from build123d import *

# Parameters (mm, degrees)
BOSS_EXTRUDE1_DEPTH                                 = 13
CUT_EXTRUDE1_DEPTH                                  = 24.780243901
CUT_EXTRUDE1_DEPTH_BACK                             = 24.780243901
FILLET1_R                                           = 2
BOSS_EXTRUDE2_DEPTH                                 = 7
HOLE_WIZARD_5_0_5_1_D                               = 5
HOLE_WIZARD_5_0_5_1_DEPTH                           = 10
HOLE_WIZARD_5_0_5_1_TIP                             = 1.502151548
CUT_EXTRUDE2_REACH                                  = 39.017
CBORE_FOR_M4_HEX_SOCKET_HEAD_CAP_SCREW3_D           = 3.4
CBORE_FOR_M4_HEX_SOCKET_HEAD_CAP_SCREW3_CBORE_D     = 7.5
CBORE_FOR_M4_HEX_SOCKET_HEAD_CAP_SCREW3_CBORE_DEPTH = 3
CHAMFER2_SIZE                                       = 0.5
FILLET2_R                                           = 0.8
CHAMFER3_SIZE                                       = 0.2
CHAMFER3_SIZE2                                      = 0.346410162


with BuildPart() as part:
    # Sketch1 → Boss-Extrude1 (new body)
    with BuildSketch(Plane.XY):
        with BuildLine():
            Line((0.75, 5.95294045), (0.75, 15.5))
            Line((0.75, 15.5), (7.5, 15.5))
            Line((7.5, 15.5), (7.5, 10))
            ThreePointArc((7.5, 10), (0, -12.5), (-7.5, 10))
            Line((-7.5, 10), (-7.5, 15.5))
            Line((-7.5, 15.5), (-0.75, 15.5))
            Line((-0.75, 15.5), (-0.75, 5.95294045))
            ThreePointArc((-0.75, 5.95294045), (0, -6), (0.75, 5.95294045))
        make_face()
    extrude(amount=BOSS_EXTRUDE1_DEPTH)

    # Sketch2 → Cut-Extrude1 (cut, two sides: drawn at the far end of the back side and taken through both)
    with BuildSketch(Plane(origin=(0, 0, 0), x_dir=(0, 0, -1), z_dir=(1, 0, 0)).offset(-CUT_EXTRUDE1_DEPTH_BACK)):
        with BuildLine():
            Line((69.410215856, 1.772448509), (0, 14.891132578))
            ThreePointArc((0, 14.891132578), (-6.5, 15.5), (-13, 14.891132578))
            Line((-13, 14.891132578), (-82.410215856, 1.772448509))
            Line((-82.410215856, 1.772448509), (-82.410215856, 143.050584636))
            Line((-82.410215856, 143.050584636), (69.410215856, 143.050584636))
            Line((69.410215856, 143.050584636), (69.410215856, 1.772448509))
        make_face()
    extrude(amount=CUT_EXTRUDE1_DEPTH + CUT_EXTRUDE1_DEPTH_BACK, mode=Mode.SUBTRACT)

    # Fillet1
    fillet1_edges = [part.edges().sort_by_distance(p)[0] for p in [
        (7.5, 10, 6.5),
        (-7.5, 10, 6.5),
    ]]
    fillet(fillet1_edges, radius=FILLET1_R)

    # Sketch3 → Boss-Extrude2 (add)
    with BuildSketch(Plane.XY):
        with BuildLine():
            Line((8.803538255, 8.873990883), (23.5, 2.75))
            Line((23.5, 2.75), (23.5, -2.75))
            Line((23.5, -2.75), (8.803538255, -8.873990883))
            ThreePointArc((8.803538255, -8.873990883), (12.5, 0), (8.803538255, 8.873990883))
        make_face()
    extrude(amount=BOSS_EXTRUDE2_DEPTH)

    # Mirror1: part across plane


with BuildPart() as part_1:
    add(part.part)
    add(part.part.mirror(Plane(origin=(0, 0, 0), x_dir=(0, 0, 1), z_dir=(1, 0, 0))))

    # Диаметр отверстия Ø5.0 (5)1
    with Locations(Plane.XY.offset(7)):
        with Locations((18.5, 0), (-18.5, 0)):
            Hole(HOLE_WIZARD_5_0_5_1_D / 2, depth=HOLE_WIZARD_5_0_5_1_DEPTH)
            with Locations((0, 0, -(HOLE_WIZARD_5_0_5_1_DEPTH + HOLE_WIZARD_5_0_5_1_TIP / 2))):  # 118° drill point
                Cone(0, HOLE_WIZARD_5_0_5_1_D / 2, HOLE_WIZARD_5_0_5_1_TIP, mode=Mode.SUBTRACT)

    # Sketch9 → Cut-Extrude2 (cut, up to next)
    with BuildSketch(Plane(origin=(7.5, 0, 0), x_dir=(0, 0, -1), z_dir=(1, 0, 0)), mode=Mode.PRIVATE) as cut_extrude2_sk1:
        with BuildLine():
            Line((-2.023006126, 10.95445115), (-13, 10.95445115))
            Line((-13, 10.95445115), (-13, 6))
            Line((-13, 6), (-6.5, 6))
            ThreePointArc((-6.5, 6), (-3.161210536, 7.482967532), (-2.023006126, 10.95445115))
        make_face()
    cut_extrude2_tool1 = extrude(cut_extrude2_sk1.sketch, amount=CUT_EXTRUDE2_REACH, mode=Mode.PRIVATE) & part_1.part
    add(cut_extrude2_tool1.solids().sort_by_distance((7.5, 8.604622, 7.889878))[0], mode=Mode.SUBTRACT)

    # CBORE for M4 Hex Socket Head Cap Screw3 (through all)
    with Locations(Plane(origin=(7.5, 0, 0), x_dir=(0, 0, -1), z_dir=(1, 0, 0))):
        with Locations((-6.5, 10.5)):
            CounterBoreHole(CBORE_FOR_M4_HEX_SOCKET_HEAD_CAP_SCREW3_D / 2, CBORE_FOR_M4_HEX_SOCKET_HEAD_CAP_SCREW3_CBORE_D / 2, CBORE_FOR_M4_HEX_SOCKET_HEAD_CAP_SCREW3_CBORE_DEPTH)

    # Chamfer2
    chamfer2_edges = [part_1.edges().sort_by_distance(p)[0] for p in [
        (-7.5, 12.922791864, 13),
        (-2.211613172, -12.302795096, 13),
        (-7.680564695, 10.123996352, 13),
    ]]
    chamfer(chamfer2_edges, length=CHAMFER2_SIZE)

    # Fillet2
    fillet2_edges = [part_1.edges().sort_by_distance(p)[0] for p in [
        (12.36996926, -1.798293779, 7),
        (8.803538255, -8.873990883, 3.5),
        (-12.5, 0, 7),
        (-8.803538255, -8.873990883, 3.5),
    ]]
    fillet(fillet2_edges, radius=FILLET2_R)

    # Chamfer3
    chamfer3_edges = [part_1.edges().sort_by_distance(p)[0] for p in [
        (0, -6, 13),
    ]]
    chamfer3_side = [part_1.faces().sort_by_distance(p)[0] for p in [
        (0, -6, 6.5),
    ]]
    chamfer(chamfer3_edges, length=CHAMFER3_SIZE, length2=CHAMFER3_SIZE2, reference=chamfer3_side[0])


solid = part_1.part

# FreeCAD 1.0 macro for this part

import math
import FreeCAD as App
import Part
import Sketcher


def edges_at(feature, points):
    """Names of the edges that pass closest to the given points."""
    edges = feature.Shape.Edges
    near = lambda p: min(range(len(edges)), key=lambda i: edges[i].distToShape(Part.Vertex(*p))[0])
    return sorted({f"Edge{near(p) + 1}" for p in points})

doc = App.newDocument("Part")
body = doc.addObject("PartDesign::Body", "Body")

sketch1 = body.newObject("Sketcher::SketchObject", "Sketch")
sketch1.AttachmentSupport = (doc.getObject("XY_Plane"), [""])
sketch1.MapMode = "FlatFace"
sketch1.addGeometry(Part.LineSegment(App.Vector(0.8, 15.5, 0), App.Vector(0.8, 6, 0)), False)
sketch1.addGeometry(Part.ArcOfCircle(Part.Circle(App.Vector(0, 0, 0), App.Vector(0, 0, 1), 6), math.radians(97), math.radians(443)), False)
sketch1.addGeometry(Part.LineSegment(App.Vector(-0.8, 6, 0), App.Vector(-0.8, 15.5, 0)), False)
sketch1.addGeometry(Part.LineSegment(App.Vector(-0.8, 15.5, 0), App.Vector(-7.5, 15.5, 0)), False)
sketch1.addGeometry(Part.LineSegment(App.Vector(-7.5, 15.5, 0), App.Vector(-7.5, 10, 0)), False)
sketch1.addGeometry(Part.ArcOfCircle(Part.Circle(App.Vector(0, 0, 0), App.Vector(0, 0, 1), 12.5), math.radians(127), math.radians(413)), False)
sketch1.addGeometry(Part.LineSegment(App.Vector(7.5, 10, 0), App.Vector(7.5, 15.5, 0)), False)
sketch1.addGeometry(Part.LineSegment(App.Vector(7.5, 15.5, 0), App.Vector(0.8, 15.5, 0)), False)
sketch1.addConstraint(Sketcher.Constraint("Coincident", 0, 2, 1, 2))
sketch1.addConstraint(Sketcher.Constraint("Coincident", 1, 1, 2, 1))
sketch1.addConstraint(Sketcher.Constraint("Coincident", 2, 2, 3, 1))
sketch1.addConstraint(Sketcher.Constraint("Coincident", 3, 2, 4, 1))
sketch1.addConstraint(Sketcher.Constraint("Coincident", 4, 2, 5, 1))
sketch1.addConstraint(Sketcher.Constraint("Coincident", 5, 2, 6, 1))
sketch1.addConstraint(Sketcher.Constraint("Coincident", 6, 2, 7, 1))
sketch1.addConstraint(Sketcher.Constraint("Coincident", 7, 2, 0, 1))
sketch1.addConstraint(Sketcher.Constraint("Vertical", 0))
sketch1.addConstraint(Sketcher.Constraint("Vertical", 2))
sketch1.addConstraint(Sketcher.Constraint("Horizontal", 3))
sketch1.addConstraint(Sketcher.Constraint("Vertical", 4))
sketch1.addConstraint(Sketcher.Constraint("Vertical", 6))
sketch1.addConstraint(Sketcher.Constraint("Horizontal", 7))
sketch1.addConstraint(Sketcher.Constraint("Coincident", 1, 3, -1, 1))
sketch1.addConstraint(Sketcher.Constraint("Coincident", 5, 3, -1, 1))
sketch1.addConstraint(Sketcher.Constraint("Symmetric", 3, 2, 6, 2, -2))
sketch1.addConstraint(Sketcher.Constraint("Horizontal", 0, 2, 1, 1))
sketch1.addConstraint(Sketcher.Constraint("Radius", 1, 6.0))
sketch1.addConstraint(Sketcher.Constraint("Radius", 5, 12.5))
sketch1.addConstraint(Sketcher.Constraint("DistanceY", 4, 2, 4, 1, 5.5))
sketch1.addConstraint(Sketcher.Constraint("DistanceY", -1, 1, 4, 2, 10.0))
sketch1.addConstraint(Sketcher.Constraint("DistanceX", 3, 2, 3, 1, 6.75))
pad1 = body.newObject("PartDesign::Pad", "Pad")
pad1.Profile = sketch1
pad1.Length = 13

sketch2 = body.newObject("Sketcher::SketchObject", "Sketch001")
sketch2.AttachmentSupport = (doc.getObject("YZ_Plane"), [""])
sketch2.MapMode = "FlatFace"
sketch2.addGeometry(Part.LineSegment(App.Vector(15, 0, 0), App.Vector(2, -69, 0)), False)
sketch2.addGeometry(Part.LineSegment(App.Vector(2, -69, 0), App.Vector(143, -69, 0)), False)
sketch2.addGeometry(Part.LineSegment(App.Vector(143, -69, 0), App.Vector(143, 82, 0)), False)
sketch2.addGeometry(Part.LineSegment(App.Vector(143, 82, 0), App.Vector(2, 82, 0)), False)
sketch2.addGeometry(Part.LineSegment(App.Vector(2, 82, 0), App.Vector(15, 13, 0)), False)
sketch2.addGeometry(Part.ArcOfCircle(Part.Circle(App.Vector(-19, 6, 0), App.Vector(0, 0, 1), 35), math.radians(-11), math.radians(11)), False)
sketch2.addConstraint(Sketcher.Constraint("Coincident", 0, 2, 1, 1))
sketch2.addConstraint(Sketcher.Constraint("Coincident", 1, 2, 2, 1))
sketch2.addConstraint(Sketcher.Constraint("Coincident", 2, 2, 3, 1))
sketch2.addConstraint(Sketcher.Constraint("Coincident", 3, 2, 4, 1))
sketch2.addConstraint(Sketcher.Constraint("Tangent", 4, 2, 5, 2))
sketch2.addConstraint(Sketcher.Constraint("Tangent", 5, 1, 0, 1))
sketch2.addConstraint(Sketcher.Constraint("Horizontal", 1))
sketch2.addConstraint(Sketcher.Constraint("Vertical", 2))
sketch2.addConstraint(Sketcher.Constraint("Horizontal", 3))
sketch2.addConstraint(Sketcher.Constraint("PointOnObject", 5, 1, -1))
sketch2.addConstraint(Sketcher.Constraint("Vertical", 0, 2, 3, 2))
sketch2.addConstraint(Sketcher.Constraint("Vertical", 4, 2, 5, 1))
sketch2.addConstraint(Sketcher.Constraint("Radius", 5, 35.0))
sketch2.addConstraint(Sketcher.Constraint("DistanceY", -1, 1, 4, 2, 13.0))
sketch2.addConstraint(Sketcher.Constraint("DistanceX", 5, 3, -1, 1, 19.5))
sketch2.addConstraint(Sketcher.Constraint("DistanceY", 2, 1, 2, 2, 151.820432))
sketch2.addConstraint(Sketcher.Constraint("DistanceX", 1, 1, 1, 2, 141.278136))
pocket1 = body.newObject("PartDesign::Pocket", "Pocket")
pocket1.Profile = sketch2
pocket1.Type = "ThroughAll"
pocket1.Midplane = True
doc.recompute()

fillet = body.newObject("PartDesign::Fillet", "Fillet")
fillet.Base = (pocket1, edges_at(pocket1, [(7.5, 10, 6.5), (-7.5, 10, 6.5)]))
fillet.Radius = 2

sketch3 = body.newObject("Sketcher::SketchObject", "Sketch002")
sketch3.AttachmentSupport = (doc.getObject("XY_Plane"), [""])
sketch3.MapMode = "FlatFace"
sketch3.addGeometry(Part.LineSegment(App.Vector(24, 3, 0), App.Vector(9, 9, 0)), False)
sketch3.addGeometry(Part.ArcOfCircle(Part.Circle(App.Vector(0, 0, 0), App.Vector(0, 0, 1), 12), math.radians(-45), math.radians(45)), False)
sketch3.addGeometry(Part.LineSegment(App.Vector(9, -9, 0), App.Vector(24, -3, 0)), False)
sketch3.addGeometry(Part.LineSegment(App.Vector(24, -3, 0), App.Vector(24, 3, 0)), False)
sketch3.addConstraint(Sketcher.Constraint("Coincident", 0, 2, 1, 2))
sketch3.addConstraint(Sketcher.Constraint("Coincident", 1, 1, 2, 1))
sketch3.addConstraint(Sketcher.Constraint("Coincident", 2, 2, 3, 1))
sketch3.addConstraint(Sketcher.Constraint("Coincident", 3, 2, 0, 1))
sketch3.addConstraint(Sketcher.Constraint("Vertical", 3))
sketch3.addConstraint(Sketcher.Constraint("Coincident", 1, 3, -1, 1))
sketch3.addConstraint(Sketcher.Constraint("Vertical", 0, 2, 1, 1))
sketch3.addConstraint(Sketcher.Constraint("Equal", 0, 2))
sketch3.addConstraint(Sketcher.Constraint("Radius", 1, 12.5))
sketch3.addConstraint(Sketcher.Constraint("DistanceY", 3, 1, 3, 2, 5.5))
sketch3.addConstraint(Sketcher.Constraint("DistanceX", -1, 1, 2, 2, 23.5))
sketch3.addConstraint(Sketcher.Constraint("DistanceX", -1, 1, 0, 2, 8.803538))
pad2 = body.newObject("PartDesign::Pad", "Pad001")
pad2.Profile = sketch3
pad2.Length = 7
body2 = doc.addObject("PartDesign::Body", "Body001")
doc.recompute()

body2.BaseFeature = body
doc.recompute()

mirroring = doc.addObject("Part::Mirroring", "Mirroring")
mirroring.Source = body
mirroring.Base = App.Vector(0, 0, 0)
mirroring.Normal = App.Vector(1, 0, 0)
body3 = doc.addObject("PartDesign::Body", "Body002")
body3.BaseFeature = mirroring
boolean = body2.newObject("PartDesign::Boolean", "Boolean")
boolean.Type = "Fuse"
boolean.addObjects([body3])
doc.recompute()

sketch4 = body2.newObject("Sketcher::SketchObject", "Sketch003")
sketch4.AttachmentSupport = (doc.getObject("XY_Plane001"), [""])
sketch4.MapMode = "FlatFace"
sketch4.AttachmentOffset = App.Placement(App.Vector(0, 0, 7), App.Rotation())
sketch4.addGeometry(Part.Circle(App.Vector(18.5, 0, 0), App.Vector(0, 0, 1), 2.5), False)
sketch4.addGeometry(Part.Circle(App.Vector(-18.5, 0, 0), App.Vector(0, 0, 1), 2.5), False)
sketch4.addConstraint(Sketcher.Constraint("Equal", 0, 1))
sketch4.addConstraint(Sketcher.Constraint("Symmetric", 0, 3, 1, 3, -1, 1))
sketch4.addConstraint(Sketcher.Constraint("PointOnObject", 0, 3, -1))
sketch4.addConstraint(Sketcher.Constraint("Diameter", 0, 5.0))
sketch4.addConstraint(Sketcher.Constraint("DistanceX", 1, 3, 0, 3, 37.0))
doc.recompute()
hole = body2.newObject("PartDesign::Hole", "Hole")
hole.Profile = sketch4
hole.ThreadType = "None"
hole.Diameter = 5
hole.DepthType = "Dimension"
hole.Depth = 10
hole.DrillPoint = "Angled"
hole.DrillPointAngle = 118

sketch5 = body2.newObject("Sketcher::SketchObject", "Sketch004")
sketch5.AttachmentSupport = (doc.getObject("YZ_Plane001"), [""])
sketch5.MapMode = "FlatFace"
sketch5.AttachmentOffset = App.Placement(App.Vector(0, 0, 7.5), App.Rotation())
sketch5.addGeometry(Part.LineSegment(App.Vector(11, 2, 0), App.Vector(11, 13, 0)), False)
sketch5.addGeometry(Part.LineSegment(App.Vector(11, 13, 0), App.Vector(6, 13, 0)), False)
sketch5.addGeometry(Part.LineSegment(App.Vector(6, 13, 0), App.Vector(6, 6.5, 0)), False)
sketch5.addGeometry(Part.ArcOfCircle(Part.Circle(App.Vector(10.5, 6.5, 0), App.Vector(0, 0, 1), 4.5), math.radians(180), math.radians(276)), False)
sketch5.addConstraint(Sketcher.Constraint("Coincident", 0, 2, 1, 1))
sketch5.addConstraint(Sketcher.Constraint("Coincident", 1, 2, 2, 1))
sketch5.addConstraint(Sketcher.Constraint("Tangent", 2, 2, 3, 1))
sketch5.addConstraint(Sketcher.Constraint("Coincident", 3, 2, 0, 1))
sketch5.addConstraint(Sketcher.Constraint("Vertical", 0))
sketch5.addConstraint(Sketcher.Constraint("Horizontal", 1))
sketch5.addConstraint(Sketcher.Constraint("Vertical", 2))
sketch5.addConstraint(Sketcher.Constraint("Radius", 3, 4.5))
sketch5.addConstraint(Sketcher.Constraint("DistanceY", 2, 2, 2, 1, 6.5))
sketch5.addConstraint(Sketcher.Constraint("DistanceY", -1, 1, 0, 2, 13.0))
sketch5.addConstraint(Sketcher.Constraint("DistanceX", -1, 1, 1, 2, 6.0))
sketch5.addConstraint(Sketcher.Constraint("DistanceX", 1, 2, 1, 1, 4.954451))
pocket2 = body2.newObject("PartDesign::Pocket", "Pocket001")
pocket2.Profile = sketch5
pocket2.Type = "UpToFirst"
pocket2.Reversed = True

sketch6 = body2.newObject("Sketcher::SketchObject", "Sketch005")
sketch6.AttachmentSupport = (doc.getObject("YZ_Plane001"), [""])
sketch6.MapMode = "FlatFace"
sketch6.AttachmentOffset = App.Placement(App.Vector(0, 0, 7.5), App.Rotation())
sketch6.addGeometry(Part.Circle(App.Vector(10.5, 6.5, 0), App.Vector(0, 0, 1), 1.7), False)
sketch6.addConstraint(Sketcher.Constraint("Diameter", 0, 3.4))
sketch6.addConstraint(Sketcher.Constraint("DistanceX", -1, 1, 0, 3, 10.5))
sketch6.addConstraint(Sketcher.Constraint("DistanceY", -1, 1, 0, 3, 6.5))
doc.recompute()
hole2 = body2.newObject("PartDesign::Hole", "Hole001")
hole2.Profile = sketch6
hole2.ThreadType = "None"
hole2.Diameter = 3.4
hole2.DepthType = "ThroughAll"
hole2.HoleCutType = "Counterbore"
hole2.HoleCutDiameter = 7.5
hole2.HoleCutDepth = 3
doc.recompute()

chamfer = body2.newObject("PartDesign::Chamfer", "Chamfer")
chamfer.Base = (hole2, edges_at(hole2, [(-7.5, 12.923, 13), (-2.212, -12.303, 13), (-7.681, 10.124, 13)]))
chamfer.Size = 0.5
doc.recompute()

fillet2 = body2.newObject("PartDesign::Fillet", "Fillet001")
fillet2.Base = (chamfer, edges_at(chamfer, [
    (12.37, -1.798, 7),
    (8.804, -8.874, 3.5),
    (-12.5, 0, 7),
    (-8.804, -8.874, 3.5),
]))
fillet2.Radius = 0.8
doc.recompute()

chamfer2 = body2.newObject("PartDesign::Chamfer", "Chamfer001")
chamfer2.Base = (fillet2, edges_at(fillet2, [(0, -6, 13)]))
chamfer2.ChamferType = "Two distances"
chamfer2.Size = 0.2
chamfer2.Size2 = 0.34641
mirroring.Visibility = False

doc.recompute()
